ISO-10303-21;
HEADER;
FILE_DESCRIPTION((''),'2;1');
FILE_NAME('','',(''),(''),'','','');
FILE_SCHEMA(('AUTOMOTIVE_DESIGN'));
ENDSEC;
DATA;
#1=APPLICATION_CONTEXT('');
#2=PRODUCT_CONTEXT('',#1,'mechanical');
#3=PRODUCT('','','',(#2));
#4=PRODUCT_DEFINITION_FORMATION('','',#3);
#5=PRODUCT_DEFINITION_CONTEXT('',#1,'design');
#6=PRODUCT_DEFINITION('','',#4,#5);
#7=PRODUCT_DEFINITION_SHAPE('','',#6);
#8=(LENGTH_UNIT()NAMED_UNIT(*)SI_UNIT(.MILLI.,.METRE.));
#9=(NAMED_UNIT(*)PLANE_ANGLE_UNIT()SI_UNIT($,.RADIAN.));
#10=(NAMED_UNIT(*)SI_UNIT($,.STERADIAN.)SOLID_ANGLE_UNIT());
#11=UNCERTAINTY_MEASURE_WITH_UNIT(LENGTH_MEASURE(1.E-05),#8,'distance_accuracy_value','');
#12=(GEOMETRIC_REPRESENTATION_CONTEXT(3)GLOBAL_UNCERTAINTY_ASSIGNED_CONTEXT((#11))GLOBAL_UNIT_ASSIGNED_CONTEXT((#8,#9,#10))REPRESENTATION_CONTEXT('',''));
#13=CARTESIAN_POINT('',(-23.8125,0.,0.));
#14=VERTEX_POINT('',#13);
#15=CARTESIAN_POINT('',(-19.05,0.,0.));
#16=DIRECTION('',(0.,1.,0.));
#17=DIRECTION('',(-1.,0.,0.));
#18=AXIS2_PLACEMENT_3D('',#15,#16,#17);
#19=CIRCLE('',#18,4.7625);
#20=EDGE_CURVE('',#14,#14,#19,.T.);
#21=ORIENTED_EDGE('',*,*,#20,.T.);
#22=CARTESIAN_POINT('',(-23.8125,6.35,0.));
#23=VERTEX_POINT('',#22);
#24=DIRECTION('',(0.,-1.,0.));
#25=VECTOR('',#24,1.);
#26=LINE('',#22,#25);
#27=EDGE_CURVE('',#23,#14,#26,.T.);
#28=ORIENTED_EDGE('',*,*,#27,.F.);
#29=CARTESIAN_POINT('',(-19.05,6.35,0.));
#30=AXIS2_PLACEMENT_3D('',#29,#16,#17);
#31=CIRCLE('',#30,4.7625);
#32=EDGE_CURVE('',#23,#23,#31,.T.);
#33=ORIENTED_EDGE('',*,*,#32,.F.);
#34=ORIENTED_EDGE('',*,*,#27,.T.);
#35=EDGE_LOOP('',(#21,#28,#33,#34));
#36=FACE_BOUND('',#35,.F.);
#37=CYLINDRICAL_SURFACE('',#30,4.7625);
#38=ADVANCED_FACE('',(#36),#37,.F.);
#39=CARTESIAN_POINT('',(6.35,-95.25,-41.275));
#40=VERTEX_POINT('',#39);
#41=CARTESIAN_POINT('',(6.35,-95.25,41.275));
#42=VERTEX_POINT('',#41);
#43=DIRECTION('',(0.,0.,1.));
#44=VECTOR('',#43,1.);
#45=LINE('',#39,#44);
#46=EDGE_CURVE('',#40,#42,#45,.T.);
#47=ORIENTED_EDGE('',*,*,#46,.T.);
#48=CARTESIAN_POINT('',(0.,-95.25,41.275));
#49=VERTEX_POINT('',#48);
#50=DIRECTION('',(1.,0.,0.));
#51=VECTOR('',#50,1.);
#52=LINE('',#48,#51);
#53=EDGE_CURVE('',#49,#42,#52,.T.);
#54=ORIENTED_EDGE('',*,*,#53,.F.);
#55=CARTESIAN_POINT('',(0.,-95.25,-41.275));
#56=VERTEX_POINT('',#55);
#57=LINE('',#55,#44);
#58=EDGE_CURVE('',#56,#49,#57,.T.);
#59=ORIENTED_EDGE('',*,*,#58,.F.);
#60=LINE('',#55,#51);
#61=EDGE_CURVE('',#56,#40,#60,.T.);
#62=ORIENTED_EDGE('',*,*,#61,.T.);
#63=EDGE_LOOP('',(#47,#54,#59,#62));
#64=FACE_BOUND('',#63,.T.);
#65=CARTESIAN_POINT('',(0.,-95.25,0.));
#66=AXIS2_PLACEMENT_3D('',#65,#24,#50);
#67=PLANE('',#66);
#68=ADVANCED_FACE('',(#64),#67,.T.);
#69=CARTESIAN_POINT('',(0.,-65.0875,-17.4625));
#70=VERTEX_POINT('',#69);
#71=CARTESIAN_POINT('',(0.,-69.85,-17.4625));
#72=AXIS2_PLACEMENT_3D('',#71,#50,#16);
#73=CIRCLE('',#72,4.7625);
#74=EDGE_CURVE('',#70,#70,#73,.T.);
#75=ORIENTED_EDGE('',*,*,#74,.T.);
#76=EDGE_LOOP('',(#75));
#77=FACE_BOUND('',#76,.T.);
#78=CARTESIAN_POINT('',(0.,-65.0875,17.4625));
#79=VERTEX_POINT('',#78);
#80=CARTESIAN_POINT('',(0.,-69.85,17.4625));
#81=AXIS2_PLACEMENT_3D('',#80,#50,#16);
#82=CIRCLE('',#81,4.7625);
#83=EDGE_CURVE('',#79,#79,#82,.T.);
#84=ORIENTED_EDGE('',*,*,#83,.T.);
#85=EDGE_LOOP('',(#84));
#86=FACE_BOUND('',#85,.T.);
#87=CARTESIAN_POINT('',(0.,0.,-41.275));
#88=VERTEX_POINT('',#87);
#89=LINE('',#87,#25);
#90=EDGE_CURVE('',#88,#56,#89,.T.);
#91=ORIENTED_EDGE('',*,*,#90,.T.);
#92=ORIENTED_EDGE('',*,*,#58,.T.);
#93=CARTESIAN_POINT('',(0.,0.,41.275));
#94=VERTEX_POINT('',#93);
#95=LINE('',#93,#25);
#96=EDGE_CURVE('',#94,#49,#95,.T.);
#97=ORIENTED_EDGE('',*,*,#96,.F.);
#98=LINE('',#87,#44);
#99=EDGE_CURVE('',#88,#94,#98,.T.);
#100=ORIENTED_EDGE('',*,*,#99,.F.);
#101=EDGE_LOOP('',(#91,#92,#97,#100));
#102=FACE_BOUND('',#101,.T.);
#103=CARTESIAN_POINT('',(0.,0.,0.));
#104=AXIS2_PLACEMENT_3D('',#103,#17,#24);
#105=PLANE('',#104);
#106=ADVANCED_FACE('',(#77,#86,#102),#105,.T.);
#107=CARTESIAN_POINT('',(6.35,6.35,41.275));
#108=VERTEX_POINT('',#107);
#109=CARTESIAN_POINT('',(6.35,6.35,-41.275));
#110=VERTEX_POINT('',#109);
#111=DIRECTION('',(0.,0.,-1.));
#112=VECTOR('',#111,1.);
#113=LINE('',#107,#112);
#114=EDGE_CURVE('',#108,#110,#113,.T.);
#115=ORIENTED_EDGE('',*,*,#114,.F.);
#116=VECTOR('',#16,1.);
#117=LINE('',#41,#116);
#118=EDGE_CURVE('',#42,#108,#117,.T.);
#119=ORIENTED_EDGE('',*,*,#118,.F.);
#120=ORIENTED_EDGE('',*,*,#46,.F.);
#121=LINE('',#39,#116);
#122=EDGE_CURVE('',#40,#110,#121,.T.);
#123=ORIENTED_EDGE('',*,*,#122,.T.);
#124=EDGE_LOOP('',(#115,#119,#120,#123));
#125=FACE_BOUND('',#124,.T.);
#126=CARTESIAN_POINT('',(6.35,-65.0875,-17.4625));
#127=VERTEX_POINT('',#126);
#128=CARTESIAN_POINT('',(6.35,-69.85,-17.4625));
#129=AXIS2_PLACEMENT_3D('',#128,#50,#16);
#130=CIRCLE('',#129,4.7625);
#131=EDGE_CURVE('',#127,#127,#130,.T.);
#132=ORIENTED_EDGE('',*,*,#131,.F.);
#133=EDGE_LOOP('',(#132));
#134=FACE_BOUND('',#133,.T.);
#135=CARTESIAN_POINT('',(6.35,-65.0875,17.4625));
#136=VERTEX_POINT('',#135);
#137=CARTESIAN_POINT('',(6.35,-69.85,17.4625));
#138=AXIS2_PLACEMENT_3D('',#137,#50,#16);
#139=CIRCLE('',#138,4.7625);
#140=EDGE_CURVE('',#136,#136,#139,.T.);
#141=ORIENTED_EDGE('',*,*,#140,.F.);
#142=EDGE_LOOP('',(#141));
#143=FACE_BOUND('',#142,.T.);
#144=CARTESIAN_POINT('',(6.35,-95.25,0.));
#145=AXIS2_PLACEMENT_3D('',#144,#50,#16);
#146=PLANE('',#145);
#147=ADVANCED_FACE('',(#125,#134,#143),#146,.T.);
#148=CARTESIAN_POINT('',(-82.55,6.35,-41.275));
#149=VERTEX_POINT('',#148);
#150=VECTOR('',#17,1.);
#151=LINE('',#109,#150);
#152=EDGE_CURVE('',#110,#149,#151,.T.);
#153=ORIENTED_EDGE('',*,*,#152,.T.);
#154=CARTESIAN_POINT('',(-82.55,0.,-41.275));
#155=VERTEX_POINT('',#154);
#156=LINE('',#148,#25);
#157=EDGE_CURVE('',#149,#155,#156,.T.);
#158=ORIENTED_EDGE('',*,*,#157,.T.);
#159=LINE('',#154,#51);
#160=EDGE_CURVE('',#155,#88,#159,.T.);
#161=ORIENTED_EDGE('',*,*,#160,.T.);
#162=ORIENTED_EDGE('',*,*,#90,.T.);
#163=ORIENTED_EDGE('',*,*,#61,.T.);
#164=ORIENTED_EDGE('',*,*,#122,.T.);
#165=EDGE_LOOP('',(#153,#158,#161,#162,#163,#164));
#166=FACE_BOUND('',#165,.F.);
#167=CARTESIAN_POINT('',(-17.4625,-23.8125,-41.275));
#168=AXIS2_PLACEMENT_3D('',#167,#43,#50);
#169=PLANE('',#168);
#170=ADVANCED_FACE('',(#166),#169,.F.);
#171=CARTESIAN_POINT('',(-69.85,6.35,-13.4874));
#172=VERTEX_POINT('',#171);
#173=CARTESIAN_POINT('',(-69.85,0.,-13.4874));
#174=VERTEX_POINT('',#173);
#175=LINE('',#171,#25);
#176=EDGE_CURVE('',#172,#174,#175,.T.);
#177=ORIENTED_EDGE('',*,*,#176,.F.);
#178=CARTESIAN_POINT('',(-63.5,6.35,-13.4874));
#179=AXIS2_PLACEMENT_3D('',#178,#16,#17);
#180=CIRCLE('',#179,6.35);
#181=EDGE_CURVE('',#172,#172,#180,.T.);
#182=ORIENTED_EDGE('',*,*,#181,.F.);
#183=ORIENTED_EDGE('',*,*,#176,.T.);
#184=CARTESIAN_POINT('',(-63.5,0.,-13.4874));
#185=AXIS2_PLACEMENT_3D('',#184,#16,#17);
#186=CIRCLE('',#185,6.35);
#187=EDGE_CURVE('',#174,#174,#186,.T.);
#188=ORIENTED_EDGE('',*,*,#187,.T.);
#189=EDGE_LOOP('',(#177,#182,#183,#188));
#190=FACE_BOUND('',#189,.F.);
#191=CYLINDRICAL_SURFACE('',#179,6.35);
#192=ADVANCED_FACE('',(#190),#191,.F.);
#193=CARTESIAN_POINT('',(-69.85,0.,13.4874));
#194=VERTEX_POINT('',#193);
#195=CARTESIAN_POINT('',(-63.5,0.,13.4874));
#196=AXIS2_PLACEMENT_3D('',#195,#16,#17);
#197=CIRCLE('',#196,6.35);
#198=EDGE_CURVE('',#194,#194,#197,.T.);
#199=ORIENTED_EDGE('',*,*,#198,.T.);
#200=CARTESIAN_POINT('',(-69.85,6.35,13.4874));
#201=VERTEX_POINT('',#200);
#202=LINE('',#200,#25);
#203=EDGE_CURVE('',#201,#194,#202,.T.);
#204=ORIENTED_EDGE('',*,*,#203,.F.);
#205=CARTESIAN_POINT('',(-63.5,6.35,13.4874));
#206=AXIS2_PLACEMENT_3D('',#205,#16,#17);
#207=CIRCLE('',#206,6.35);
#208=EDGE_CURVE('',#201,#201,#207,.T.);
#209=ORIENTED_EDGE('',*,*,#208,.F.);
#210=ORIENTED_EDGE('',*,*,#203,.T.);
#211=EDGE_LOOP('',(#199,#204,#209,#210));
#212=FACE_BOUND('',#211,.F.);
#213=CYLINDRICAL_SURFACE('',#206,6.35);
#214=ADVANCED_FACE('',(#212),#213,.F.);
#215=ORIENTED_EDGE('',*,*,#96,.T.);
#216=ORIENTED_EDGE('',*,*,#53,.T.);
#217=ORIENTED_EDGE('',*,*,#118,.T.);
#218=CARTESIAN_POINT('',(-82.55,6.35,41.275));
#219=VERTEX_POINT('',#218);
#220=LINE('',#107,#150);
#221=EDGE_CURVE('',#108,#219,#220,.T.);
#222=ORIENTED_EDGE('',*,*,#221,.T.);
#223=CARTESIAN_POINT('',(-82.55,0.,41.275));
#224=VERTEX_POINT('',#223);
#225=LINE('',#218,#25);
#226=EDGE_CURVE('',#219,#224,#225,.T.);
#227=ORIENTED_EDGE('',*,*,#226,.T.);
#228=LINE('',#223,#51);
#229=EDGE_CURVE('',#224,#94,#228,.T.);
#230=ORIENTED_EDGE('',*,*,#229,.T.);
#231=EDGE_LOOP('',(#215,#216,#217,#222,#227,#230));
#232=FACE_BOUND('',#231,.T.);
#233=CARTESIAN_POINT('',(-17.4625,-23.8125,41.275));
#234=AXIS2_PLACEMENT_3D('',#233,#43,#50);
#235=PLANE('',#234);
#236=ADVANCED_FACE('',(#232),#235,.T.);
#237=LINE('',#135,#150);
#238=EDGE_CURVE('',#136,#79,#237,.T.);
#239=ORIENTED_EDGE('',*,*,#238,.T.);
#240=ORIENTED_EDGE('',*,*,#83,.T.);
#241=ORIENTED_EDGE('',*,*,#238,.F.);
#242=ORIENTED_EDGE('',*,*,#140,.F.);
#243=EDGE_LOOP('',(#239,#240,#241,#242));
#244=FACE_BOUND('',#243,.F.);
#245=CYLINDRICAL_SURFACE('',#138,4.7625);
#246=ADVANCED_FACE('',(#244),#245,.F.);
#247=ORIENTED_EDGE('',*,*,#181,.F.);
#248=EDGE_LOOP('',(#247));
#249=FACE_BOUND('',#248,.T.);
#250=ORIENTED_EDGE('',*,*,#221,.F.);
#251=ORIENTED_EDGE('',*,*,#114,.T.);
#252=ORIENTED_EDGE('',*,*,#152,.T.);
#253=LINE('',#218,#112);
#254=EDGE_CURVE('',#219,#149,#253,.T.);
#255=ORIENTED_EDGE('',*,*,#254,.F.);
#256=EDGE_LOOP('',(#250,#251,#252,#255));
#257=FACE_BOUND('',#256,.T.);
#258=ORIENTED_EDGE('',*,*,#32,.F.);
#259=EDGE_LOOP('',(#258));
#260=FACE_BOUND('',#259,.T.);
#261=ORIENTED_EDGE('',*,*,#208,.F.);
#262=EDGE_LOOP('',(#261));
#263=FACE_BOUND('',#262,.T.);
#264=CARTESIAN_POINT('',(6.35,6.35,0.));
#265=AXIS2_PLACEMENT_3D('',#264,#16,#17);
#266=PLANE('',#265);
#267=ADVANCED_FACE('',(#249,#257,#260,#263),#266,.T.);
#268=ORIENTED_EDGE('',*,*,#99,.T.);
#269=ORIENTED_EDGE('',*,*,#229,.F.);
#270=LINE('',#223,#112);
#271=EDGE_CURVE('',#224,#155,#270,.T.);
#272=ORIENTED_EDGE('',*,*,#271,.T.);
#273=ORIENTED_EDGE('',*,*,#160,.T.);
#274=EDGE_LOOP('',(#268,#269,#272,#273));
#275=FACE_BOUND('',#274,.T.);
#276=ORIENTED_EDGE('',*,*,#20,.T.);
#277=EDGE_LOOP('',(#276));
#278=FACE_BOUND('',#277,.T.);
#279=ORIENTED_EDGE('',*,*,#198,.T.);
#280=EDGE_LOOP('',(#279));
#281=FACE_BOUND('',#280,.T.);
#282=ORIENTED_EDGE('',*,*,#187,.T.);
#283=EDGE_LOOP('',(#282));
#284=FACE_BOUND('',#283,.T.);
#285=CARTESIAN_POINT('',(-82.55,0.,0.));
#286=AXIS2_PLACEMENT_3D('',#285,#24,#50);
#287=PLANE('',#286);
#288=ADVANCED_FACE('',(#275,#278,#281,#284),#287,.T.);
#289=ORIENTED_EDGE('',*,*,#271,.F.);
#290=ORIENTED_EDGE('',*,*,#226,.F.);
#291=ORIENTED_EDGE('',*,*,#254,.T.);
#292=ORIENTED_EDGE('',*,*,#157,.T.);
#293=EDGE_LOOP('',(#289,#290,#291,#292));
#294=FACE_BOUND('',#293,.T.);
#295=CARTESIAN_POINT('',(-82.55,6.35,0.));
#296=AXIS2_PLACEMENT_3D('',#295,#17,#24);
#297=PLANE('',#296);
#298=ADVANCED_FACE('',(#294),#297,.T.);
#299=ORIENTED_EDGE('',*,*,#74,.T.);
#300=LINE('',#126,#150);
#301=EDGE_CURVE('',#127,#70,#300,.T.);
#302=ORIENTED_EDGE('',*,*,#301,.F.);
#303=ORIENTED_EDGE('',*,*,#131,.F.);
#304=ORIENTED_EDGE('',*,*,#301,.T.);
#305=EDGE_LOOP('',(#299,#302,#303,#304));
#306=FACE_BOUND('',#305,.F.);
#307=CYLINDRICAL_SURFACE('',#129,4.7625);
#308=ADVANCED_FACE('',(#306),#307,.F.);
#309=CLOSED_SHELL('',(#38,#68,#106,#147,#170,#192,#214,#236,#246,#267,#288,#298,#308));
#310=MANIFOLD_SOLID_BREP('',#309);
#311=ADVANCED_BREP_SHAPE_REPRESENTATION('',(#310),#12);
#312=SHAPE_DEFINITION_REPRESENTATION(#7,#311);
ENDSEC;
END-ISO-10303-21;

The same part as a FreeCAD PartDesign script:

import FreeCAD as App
import Part
import Sketcher
from FreeCAD import Vector
Q = App.Units.Quantity


def add_polygon(sketch, points):
    """Adds a closed chain of lines whose ends are joined by coincident constraints."""
    first, n = sketch.GeometryCount, len(points)
    for a, b in zip(points, points[1:] + points[:1]):
        sketch.addGeometry(Part.LineSegment(App.Vector(*a, 0), App.Vector(*b, 0)), False)
    for i in range(n):
        sketch.addConstraint(Sketcher.Constraint("Coincident", first + i, 2, first + (i + 1) % n, 1))

doc = App.newDocument("Part")
params = doc.addObject("Spreadsheet::Sheet", "Params")
for row, (alias, value) in enumerate([
    ("sketch1_height", "4 in"),
    ("sketch1_width", "3.5 in"),
    ("sketch1_width2", "3.25 in"),
    ("pad1_length", "3.25 in"),
    ("sketch2_diameter", "0.375 in"),
    ("sketch3_diameter", "0.5 in"),
    ("sketch3_diameter2", "0.375 in"),
], start=1):
    params.set(f"A{row}", alias)
    params.set(f"B{row}", "=" + value)
    params.setAlias(f"B{row}", alias)

body = doc.addObject("PartDesign::Body", "Body")

# Sketch on XY plane
sketch1 = body.newObject("Sketcher::SketchObject", "Sketch")
sketch1.AttachmentSupport = (doc.getObject("XY_Plane"), [""])
sketch1.MapMode = "FlatFace"
add_polygon(sketch1, [(-83, 0), (0, 0), (0, -95), (6, -95), (6, 6), (-83, 6)])  # lines 0-5
sketch1.addConstraint([
    Sketcher.Constraint("Horizontal", 0),
    Sketcher.Constraint("Vertical", 1),
    Sketcher.Constraint("Horizontal", 2),
    Sketcher.Constraint("Vertical", 3),
    Sketcher.Constraint("Horizontal", 4),
    Sketcher.Constraint("Vertical", 5),
    Sketcher.Constraint("Coincident", 0, 2, -1, 1),
    Sketcher.Constraint("Equal", 2, 5),
    Sketcher.Constraint("DistanceY", 3, 1, 3, 2, Q("4 in")),
    Sketcher.Constraint("DistanceX", 4, 2, 4, 1, Q("3.5 in")),
    Sketcher.Constraint("DistanceX", 0, 1, 0, 2, Q("3.25 in")),
])
sketch1.setExpression("Constraints[14]", "Params.sketch1_height")
sketch1.setExpression("Constraints[15]", "Params.sketch1_width")
sketch1.setExpression("Constraints[16]", "Params.sketch1_width2")
pad1 = body.newObject("PartDesign::Pad", "Pad")
pad1.Profile = sketch1
pad1.setExpression("Length", "Params.pad1_length")
pad1.Midplane = True

# Sketch on YZ plane
sketch2 = body.newObject("Sketcher::SketchObject", "Sketch001")
sketch2.AttachmentSupport = (doc.getObject("YZ_Plane"), [""])
sketch2.MapMode = "FlatFace"
sketch2.AttachmentOffset = App.Placement(Vector(0, 0, 0.25 * 25.4), App.Rotation())
sketch2.addGeometry([
    Part.Circle(Vector(-69.8, 17.5, 0), Vector(0, 0, 1), 4.8),
    Part.Circle(Vector(-69.8, -17.5, 0), Vector(0, 0, 1), 4.8),
], False)
sketch2.addConstraint([
    Sketcher.Constraint("Equal", 0, 1),
    Sketcher.Constraint("Symmetric", 0, 3, 1, 3, -1),
    Sketcher.Constraint("Diameter", 0, Q("0.375 in")),
    Sketcher.Constraint("DistanceX", 0, 3, -1, 1, Q("2.75 in")),
    Sketcher.Constraint("DistanceY", -1, 1, 0, 3, Q("0.6875 in")),
])
sketch2.setExpression("Constraints[2]", "Params.sketch2_diameter")
pocket1 = body.newObject("PartDesign::Pocket", "Pocket")
pocket1.Profile = sketch2
pocket1.Type = "ThroughAll"

# Sketch on XZ plane
sketch3 = body.newObject("Sketcher::SketchObject", "Sketch002")
sketch3.AttachmentSupport = (doc.getObject("XZ_Plane"), [""])
sketch3.MapMode = "FlatFace"
sketch3.AttachmentOffset = App.Placement(Vector(0, 0, -0.25 * 25.4), App.Rotation())
sketch3.addGeometry([
    Part.Circle(Vector(-63.5, 13.5, 0), Vector(0, 0, 1), 6.3),
    Part.Circle(Vector(-63.5, -13.5, 0), Vector(0, 0, 1), 6.3),
    Part.Circle(Vector(-19.1, 0, 0), Vector(0, 0, 1), 4.8),
], False)
sketch3.addConstraint([
    Sketcher.Constraint("Equal", 0, 1),
    Sketcher.Constraint("Symmetric", 0, 3, 1, 3, -1),
    Sketcher.Constraint("PointOnObject", 2, 3, -1),
    Sketcher.Constraint("Diameter", 0, Q("0.5 in")),
    Sketcher.Constraint("Diameter", 2, Q("0.375 in")),
    Sketcher.Constraint("DistanceX", 0, 3, -1, 1, Q("2.5 in")),
    Sketcher.Constraint("DistanceX", 2, 3, -1, 1, Q("0.75 in")),
    Sketcher.Constraint("DistanceY", -1, 1, 0, 3, Q("0.531 in")),
])
sketch3.setExpression("Constraints[3]", "Params.sketch3_diameter")
sketch3.setExpression("Constraints[4]", "Params.sketch3_diameter2")
pocket2 = body.newObject("PartDesign::Pocket", "Pocket001")
pocket2.Profile = sketch3
pocket2.Type = "ThroughAll"
pocket2.Reversed = True

doc.recompute()
